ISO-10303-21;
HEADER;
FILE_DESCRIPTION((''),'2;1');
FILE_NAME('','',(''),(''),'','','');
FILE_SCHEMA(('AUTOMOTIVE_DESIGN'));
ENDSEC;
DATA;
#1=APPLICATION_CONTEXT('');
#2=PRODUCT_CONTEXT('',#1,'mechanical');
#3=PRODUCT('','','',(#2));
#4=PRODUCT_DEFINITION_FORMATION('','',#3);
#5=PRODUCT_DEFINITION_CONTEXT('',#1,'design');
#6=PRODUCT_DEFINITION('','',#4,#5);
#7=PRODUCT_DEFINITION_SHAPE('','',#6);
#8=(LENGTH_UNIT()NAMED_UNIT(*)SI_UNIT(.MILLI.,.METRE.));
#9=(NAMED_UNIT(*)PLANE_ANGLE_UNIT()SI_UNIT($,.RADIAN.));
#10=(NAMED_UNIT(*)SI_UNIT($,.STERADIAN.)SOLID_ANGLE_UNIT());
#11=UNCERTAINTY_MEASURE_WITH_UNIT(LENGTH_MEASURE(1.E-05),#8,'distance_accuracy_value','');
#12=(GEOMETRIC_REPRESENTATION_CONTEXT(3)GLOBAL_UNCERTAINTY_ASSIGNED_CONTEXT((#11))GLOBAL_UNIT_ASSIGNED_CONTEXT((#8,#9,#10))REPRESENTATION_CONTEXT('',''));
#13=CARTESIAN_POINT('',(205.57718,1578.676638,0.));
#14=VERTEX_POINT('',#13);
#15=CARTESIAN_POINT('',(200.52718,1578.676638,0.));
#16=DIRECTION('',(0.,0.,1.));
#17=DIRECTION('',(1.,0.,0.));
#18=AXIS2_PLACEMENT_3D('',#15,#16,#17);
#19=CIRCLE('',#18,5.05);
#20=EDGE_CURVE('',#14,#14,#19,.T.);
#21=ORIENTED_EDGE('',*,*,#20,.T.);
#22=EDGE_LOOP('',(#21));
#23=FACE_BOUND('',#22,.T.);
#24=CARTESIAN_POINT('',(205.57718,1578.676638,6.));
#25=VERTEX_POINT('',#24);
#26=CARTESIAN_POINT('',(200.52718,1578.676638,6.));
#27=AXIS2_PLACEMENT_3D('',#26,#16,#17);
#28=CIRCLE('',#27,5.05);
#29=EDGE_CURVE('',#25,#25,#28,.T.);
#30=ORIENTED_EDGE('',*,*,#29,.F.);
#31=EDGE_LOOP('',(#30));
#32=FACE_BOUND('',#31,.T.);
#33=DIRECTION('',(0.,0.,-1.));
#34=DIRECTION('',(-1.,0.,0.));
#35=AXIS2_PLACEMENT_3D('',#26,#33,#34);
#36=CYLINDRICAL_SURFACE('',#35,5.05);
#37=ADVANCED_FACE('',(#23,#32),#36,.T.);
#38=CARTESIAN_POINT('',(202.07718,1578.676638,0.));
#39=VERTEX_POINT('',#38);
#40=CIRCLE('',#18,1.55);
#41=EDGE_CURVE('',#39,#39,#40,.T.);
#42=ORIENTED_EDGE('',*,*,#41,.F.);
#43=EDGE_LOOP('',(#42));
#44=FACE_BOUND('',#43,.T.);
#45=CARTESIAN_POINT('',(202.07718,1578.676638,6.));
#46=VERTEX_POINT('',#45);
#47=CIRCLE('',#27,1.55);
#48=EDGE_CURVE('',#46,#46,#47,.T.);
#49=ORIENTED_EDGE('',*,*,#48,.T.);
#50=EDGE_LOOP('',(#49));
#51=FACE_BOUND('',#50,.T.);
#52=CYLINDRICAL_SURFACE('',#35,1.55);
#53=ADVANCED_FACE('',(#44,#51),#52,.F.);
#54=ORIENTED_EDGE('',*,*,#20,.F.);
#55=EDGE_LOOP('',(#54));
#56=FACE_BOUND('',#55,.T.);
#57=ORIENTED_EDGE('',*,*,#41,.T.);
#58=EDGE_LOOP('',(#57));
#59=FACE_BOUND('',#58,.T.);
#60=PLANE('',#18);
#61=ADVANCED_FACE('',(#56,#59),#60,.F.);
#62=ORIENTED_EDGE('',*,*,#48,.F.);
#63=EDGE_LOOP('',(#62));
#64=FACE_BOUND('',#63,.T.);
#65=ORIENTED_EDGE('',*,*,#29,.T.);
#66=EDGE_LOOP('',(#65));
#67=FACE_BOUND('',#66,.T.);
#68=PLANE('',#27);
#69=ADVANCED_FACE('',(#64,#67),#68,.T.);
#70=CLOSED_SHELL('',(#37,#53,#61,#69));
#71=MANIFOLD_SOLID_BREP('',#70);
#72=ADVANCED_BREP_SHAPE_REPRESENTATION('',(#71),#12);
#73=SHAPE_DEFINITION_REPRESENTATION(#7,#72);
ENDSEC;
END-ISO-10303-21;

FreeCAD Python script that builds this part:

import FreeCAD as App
import Part
import Sketcher
from FreeCAD import Vector

doc = App.newDocument("Part")
body = doc.addObject("PartDesign::Body", "Body")

# Sketch on XY plane
sketch1 = doc.addObject("Sketcher::SketchObject", "Sketch")
body.addObject(sketch1)
sketch1.AttachmentSupport = (doc.XY_Plane, [""])
sketch1.MapMode = "FlatFace"
sketch1.addGeometry(Part.Circle(Vector(200.5, 1578.7, 0), Vector(0, 0, 1), 5), False)
sketch1.addGeometry(Part.Circle(Vector(200.5, 1578.7, 0), Vector(0, 0, 1), 1.6), False)
sketch1.addConstraint(Sketcher.Constraint("Coincident", 1, 3, 0, 3))
sketch1.addConstraint(Sketcher.Constraint("Diameter", 0, 10.1))
sketch1.addConstraint(Sketcher.Constraint("Diameter", 1, 3.1))
sketch1.addConstraint(Sketcher.Constraint("DistanceX", -1, 1, 0, 3, 200.52718))
sketch1.addConstraint(Sketcher.Constraint("DistanceY", -1, 1, 0, 3, 1578.676638))
pad1 = doc.addObject("PartDesign::Pad", "Pad")
body.addObject(pad1)
pad1.Profile = sketch1
pad1.Length = 6

doc.recompute()
